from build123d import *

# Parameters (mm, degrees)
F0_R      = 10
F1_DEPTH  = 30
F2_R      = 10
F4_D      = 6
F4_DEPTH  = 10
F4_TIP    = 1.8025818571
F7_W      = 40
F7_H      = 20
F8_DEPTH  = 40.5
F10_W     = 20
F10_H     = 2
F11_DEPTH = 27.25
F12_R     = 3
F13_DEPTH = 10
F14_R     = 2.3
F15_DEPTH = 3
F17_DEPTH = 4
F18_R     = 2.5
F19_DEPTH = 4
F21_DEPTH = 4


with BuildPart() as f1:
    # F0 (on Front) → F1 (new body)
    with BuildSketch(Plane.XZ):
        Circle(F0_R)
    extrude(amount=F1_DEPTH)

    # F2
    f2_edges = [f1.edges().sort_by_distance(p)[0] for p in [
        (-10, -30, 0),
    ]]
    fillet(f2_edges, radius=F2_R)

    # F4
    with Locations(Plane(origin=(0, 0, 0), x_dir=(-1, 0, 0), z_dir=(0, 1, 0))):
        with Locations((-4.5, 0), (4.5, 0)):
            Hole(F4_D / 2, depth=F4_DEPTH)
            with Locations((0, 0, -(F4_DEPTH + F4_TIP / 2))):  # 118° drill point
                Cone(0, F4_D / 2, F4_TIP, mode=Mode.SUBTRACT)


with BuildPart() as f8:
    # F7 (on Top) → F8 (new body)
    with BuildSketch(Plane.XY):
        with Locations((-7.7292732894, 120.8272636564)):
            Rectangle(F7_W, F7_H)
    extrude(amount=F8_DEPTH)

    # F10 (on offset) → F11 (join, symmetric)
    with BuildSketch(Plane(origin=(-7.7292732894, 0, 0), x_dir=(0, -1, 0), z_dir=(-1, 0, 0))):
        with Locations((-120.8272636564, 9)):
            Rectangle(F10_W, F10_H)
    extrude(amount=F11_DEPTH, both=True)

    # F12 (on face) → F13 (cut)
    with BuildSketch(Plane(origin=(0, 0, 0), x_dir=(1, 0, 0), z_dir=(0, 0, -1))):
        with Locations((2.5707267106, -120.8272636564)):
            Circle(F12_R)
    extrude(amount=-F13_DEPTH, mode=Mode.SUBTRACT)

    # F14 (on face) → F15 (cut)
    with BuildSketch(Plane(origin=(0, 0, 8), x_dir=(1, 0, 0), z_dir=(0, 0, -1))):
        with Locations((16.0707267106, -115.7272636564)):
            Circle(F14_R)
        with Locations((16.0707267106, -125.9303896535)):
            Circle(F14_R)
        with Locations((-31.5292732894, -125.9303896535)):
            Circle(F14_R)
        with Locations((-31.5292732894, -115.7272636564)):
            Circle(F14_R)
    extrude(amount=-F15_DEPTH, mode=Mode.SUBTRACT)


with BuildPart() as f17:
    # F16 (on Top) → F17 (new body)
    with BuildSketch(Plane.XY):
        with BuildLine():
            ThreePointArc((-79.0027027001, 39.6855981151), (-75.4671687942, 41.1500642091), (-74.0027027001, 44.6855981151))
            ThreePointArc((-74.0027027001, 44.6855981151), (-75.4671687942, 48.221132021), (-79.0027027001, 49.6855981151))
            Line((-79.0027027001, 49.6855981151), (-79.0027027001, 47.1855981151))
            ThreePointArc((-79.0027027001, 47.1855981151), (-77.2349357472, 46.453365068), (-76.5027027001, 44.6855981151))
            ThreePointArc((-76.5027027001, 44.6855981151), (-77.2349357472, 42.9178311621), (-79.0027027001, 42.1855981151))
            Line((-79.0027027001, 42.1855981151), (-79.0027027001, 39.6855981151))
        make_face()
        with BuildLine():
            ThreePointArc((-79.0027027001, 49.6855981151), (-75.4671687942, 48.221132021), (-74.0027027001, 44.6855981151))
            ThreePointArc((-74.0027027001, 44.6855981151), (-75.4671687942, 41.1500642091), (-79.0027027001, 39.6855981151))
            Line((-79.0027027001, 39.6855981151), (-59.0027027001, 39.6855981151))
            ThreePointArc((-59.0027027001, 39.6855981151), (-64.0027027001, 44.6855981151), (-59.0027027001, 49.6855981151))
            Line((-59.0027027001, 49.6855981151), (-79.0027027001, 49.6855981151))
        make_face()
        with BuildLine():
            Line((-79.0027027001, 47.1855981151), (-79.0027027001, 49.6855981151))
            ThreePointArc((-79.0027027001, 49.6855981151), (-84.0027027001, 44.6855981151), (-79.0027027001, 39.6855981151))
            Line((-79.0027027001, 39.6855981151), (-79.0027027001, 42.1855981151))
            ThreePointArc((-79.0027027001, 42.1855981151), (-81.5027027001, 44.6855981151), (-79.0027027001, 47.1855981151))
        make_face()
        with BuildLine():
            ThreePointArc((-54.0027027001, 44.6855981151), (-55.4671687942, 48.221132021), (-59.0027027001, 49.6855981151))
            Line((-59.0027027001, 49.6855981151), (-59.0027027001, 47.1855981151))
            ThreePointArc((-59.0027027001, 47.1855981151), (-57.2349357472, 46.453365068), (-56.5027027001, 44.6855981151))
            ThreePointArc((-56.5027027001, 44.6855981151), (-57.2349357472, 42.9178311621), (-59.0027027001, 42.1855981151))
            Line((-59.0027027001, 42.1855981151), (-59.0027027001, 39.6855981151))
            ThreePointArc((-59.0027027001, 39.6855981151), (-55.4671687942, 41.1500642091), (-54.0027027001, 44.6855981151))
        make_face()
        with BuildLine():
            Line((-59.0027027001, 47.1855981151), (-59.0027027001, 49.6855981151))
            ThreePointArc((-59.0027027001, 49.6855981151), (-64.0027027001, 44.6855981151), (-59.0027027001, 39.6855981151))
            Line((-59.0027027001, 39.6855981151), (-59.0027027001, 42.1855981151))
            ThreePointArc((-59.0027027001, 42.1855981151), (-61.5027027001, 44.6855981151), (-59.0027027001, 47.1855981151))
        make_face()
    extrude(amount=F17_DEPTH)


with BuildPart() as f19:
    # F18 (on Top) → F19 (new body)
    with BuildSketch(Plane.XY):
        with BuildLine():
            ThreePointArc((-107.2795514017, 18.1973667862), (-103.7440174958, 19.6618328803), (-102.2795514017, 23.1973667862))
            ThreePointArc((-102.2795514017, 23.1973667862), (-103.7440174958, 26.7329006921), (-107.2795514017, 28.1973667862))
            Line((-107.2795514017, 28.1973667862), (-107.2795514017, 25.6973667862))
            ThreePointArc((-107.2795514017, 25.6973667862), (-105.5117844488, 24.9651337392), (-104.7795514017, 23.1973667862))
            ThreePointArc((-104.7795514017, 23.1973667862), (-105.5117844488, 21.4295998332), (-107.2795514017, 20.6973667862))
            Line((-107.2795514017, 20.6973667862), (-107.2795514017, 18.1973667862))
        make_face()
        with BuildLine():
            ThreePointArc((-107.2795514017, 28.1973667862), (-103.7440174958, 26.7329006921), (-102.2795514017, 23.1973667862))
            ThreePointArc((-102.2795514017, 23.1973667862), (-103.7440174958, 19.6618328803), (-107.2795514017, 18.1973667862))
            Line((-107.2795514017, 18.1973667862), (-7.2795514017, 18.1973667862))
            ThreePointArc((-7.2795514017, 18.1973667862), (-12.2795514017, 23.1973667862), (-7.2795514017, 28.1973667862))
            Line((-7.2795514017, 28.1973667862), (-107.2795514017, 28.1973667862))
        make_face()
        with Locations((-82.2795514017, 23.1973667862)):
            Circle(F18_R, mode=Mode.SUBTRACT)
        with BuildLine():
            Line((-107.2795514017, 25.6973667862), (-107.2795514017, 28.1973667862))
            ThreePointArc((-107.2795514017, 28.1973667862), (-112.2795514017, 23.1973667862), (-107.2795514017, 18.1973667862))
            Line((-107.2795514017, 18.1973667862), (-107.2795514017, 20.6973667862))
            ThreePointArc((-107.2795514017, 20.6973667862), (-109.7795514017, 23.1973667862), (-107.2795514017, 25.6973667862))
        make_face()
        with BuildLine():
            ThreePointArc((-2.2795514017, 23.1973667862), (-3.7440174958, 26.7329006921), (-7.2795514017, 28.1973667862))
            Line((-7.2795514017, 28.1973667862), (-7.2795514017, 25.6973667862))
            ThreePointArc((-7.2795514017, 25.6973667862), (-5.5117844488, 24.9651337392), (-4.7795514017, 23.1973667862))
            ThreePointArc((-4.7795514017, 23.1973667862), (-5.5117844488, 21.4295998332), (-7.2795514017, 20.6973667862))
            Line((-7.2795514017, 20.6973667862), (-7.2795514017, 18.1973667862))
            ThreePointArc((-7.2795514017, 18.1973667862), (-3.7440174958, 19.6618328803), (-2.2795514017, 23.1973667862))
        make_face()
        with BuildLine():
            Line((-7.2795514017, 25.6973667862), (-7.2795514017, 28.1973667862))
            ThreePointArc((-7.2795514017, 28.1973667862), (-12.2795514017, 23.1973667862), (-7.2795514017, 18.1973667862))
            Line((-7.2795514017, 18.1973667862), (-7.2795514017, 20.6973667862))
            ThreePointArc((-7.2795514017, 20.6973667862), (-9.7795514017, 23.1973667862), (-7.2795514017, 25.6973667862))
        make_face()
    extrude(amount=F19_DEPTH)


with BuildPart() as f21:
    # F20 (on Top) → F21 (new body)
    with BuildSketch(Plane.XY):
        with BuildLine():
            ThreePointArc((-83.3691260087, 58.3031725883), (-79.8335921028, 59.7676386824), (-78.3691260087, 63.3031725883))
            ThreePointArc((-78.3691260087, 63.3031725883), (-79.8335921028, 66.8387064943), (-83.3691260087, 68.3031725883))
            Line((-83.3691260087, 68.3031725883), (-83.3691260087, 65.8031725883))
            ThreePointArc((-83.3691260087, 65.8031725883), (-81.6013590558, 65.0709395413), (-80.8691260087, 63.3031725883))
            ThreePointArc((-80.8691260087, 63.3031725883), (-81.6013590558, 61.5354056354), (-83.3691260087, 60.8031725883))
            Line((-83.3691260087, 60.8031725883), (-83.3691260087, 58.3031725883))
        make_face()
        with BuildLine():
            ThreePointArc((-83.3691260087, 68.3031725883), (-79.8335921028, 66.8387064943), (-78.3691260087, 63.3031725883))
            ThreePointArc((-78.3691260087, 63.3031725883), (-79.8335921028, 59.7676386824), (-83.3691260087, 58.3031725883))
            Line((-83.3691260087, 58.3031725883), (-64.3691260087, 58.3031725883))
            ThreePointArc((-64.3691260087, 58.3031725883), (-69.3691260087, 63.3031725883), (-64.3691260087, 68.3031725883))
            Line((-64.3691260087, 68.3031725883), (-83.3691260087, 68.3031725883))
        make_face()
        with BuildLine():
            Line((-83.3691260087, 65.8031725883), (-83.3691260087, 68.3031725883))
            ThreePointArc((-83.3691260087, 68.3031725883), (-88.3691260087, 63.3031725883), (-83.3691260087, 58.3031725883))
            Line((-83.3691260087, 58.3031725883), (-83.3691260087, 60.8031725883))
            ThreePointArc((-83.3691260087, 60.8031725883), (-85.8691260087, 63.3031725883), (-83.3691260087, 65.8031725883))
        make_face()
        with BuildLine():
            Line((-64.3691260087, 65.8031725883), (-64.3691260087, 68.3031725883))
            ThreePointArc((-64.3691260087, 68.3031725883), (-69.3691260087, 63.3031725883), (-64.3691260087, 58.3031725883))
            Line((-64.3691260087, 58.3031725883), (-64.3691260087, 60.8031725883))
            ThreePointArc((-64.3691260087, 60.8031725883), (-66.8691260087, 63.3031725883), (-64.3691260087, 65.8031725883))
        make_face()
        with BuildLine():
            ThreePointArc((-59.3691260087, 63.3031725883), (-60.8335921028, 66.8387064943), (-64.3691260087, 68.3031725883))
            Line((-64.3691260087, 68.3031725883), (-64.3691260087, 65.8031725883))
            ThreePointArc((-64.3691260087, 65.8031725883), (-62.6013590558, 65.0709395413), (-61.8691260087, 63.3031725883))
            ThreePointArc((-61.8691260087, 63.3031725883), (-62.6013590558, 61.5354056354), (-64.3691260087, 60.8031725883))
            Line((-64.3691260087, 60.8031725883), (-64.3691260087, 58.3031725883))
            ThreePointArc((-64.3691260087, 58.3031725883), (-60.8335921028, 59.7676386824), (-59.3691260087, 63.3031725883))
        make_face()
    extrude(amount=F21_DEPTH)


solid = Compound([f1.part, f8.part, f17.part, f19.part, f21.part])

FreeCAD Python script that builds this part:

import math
import FreeCAD as App
import Part
import Sketcher
from FreeCAD import Vector


def edges_at(feature, points):
    """Names of the edges that pass closest to the given points."""
    edges = feature.Shape.Edges
    near = lambda p: min(range(len(edges)), key=lambda i: edges[i].distToShape(Part.Vertex(*p))[0])
    return sorted({f"Edge{near(p) + 1}" for p in points})

doc = App.newDocument("Part")
params = doc.addObject("Spreadsheet::Sheet", "Params")
for row, (alias, value) in enumerate([
    ("sketch1_diameter", "20 mm"),
    ("pad1_length", "30 mm"),
    ("fillet_radius", "10 mm"),
    ("sketch2_diameter", "6 mm"),
    ("hole_diameter", "6 mm"),
    ("hole_depth", "10 mm"),
    ("sketch3_width", "40 mm"),
    ("sketch3_height", "20 mm"),
    ("pad2_length", "40.5 mm"),
    ("sketch4_width", "20 mm"),
    ("sketch4_height", "2 mm"),
    ("pad3_length", "54.5 mm"),
    ("sketch5_diameter", "6 mm"),
    ("pocket1_length", "10 mm"),
    ("sketch6_diameter", "4.6 mm"),
    ("pocket2_length", "3 mm"),
    ("sketch7_radius", "5 mm"),
    ("sketch7_radius2", "2.5 mm"),
    ("sketch7_width", "20 mm"),
    ("pad4_length", "4 mm"),
    ("sketch8_diameter", "5 mm"),
    ("sketch8_radius", "5 mm"),
    ("sketch8_width", "100 mm"),
    ("pad5_length", "4 mm"),
    ("sketch9_radius", "5 mm"),
    ("sketch9_radius2", "2.5 mm"),
    ("sketch9_width", "19 mm"),
    ("pad6_length", "4 mm"),
], start=1):
    params.set(f"A{row}", alias)
    params.set(f"B{row}", "=" + value)
    params.setAlias(f"B{row}", alias)

body = doc.addObject("PartDesign::Body", "Body")

sketch1 = body.newObject("Sketcher::SketchObject", "Sketch")
sketch1.AttachmentSupport = (doc.getObject("XZ_Plane"), [""])
sketch1.MapMode = "FlatFace"
sketch1.addGeometry(Part.Circle(Vector(0, 0, 0), Vector(0, 0, 1), 10), False)
sketch1.addConstraint(Sketcher.Constraint("Coincident", 0, 3, -1, 1))
sketch1.addConstraint(Sketcher.Constraint("Diameter", 0, 20.0))
sketch1.setExpression("Constraints[1]", "Params.sketch1_diameter")
pad1 = body.newObject("PartDesign::Pad", "Pad")
pad1.Profile = sketch1
pad1.setExpression("Length", "Params.pad1_length")
doc.recompute()

fillet = body.newObject("PartDesign::Fillet", "Fillet")
fillet.Base = (pad1, edges_at(pad1, [(-10, -30, 0)]))
fillet.setExpression("Radius", "Params.fillet_radius")

sketch2 = body.newObject("Sketcher::SketchObject", "Sketch001")
sketch2.AttachmentSupport = (doc.getObject("XZ_Plane"), [""])
sketch2.MapMode = "FlatFace"
sketch2.addGeometry(Part.Circle(Vector(4.5, 0, 0), Vector(0, 0, 1), 3), False)
sketch2.addGeometry(Part.Circle(Vector(-4.5, 0, 0), Vector(0, 0, 1), 3), False)
sketch2.addConstraint(Sketcher.Constraint("Equal", 0, 1))
sketch2.addConstraint(Sketcher.Constraint("Symmetric", 0, 3, 1, 3, -1, 1))
sketch2.addConstraint(Sketcher.Constraint("PointOnObject", 0, 3, -1))
sketch2.addConstraint(Sketcher.Constraint("Diameter", 0, 6.0))
sketch2.addConstraint(Sketcher.Constraint("DistanceX", 1, 3, 0, 3, 9.0))
sketch2.setExpression("Constraints[3]", "Params.sketch2_diameter")
doc.recompute()
hole = body.newObject("PartDesign::Hole", "Hole")
hole.Profile = sketch2
hole.ThreadType = "None"
hole.setExpression("Diameter", "Params.hole_diameter")
hole.DepthType = "Dimension"
hole.setExpression("Depth", "Params.hole_depth")
hole.DrillPoint = "Angled"
hole.DrillPointAngle = 118
hole.Reversed = True
body2 = doc.addObject("PartDesign::Body", "Body001")

sketch3 = body2.newObject("Sketcher::SketchObject", "Sketch002")
sketch3.AttachmentSupport = (doc.getObject("XY_Plane001"), [""])
sketch3.MapMode = "FlatFace"
sketch3.addGeometry(Part.LineSegment(Vector(-28, 131, 0), Vector(-28, 111, 0)), False)
sketch3.addGeometry(Part.LineSegment(Vector(-28, 111, 0), Vector(12, 111, 0)), False)
sketch3.addGeometry(Part.LineSegment(Vector(12, 111, 0), Vector(12, 131, 0)), False)
sketch3.addGeometry(Part.LineSegment(Vector(12, 131, 0), Vector(-28, 131, 0)), False)
sketch3.addConstraint(Sketcher.Constraint("Coincident", 0, 2, 1, 1))
sketch3.addConstraint(Sketcher.Constraint("Coincident", 1, 2, 2, 1))
sketch3.addConstraint(Sketcher.Constraint("Coincident", 2, 2, 3, 1))
sketch3.addConstraint(Sketcher.Constraint("Coincident", 3, 2, 0, 1))
sketch3.addConstraint(Sketcher.Constraint("Vertical", 0))
sketch3.addConstraint(Sketcher.Constraint("Horizontal", 1))
sketch3.addConstraint(Sketcher.Constraint("Vertical", 2))
sketch3.addConstraint(Sketcher.Constraint("Horizontal", 3))
sketch3.addConstraint(Sketcher.Constraint("DistanceX", 1, 1, 1, 2, 40.0))
sketch3.addConstraint(Sketcher.Constraint("DistanceY", 0, 2, 0, 1, 20.0))
sketch3.addConstraint(Sketcher.Constraint("DistanceX", 0, 2, -1, 1, 27.729273))
sketch3.addConstraint(Sketcher.Constraint("DistanceY", -1, 1, 0, 2, 110.827264))
sketch3.setExpression("Constraints[8]", "Params.sketch3_width")
sketch3.setExpression("Constraints[9]", "Params.sketch3_height")
pad2 = body2.newObject("PartDesign::Pad", "Pad001")
pad2.Profile = sketch3
pad2.setExpression("Length", "Params.pad2_length")

sketch4 = body2.newObject("Sketcher::SketchObject", "Sketch003")
sketch4.AttachmentSupport = (doc.getObject("YZ_Plane001"), [""])
sketch4.MapMode = "FlatFace"
sketch4.AttachmentOffset = App.Placement(Vector(0, 0, -7.729273), App.Rotation())
sketch4.addGeometry(Part.LineSegment(Vector(130.8, 10, 0), Vector(130.8, 8, 0)), False)
sketch4.addGeometry(Part.LineSegment(Vector(130.8, 8, 0), Vector(110.8, 8, 0)), False)
sketch4.addGeometry(Part.LineSegment(Vector(110.8, 8, 0), Vector(110.8, 10, 0)), False)
sketch4.addGeometry(Part.LineSegment(Vector(110.8, 10, 0), Vector(130.8, 10, 0)), False)
sketch4.addConstraint(Sketcher.Constraint("Coincident", 0, 2, 1, 1))
sketch4.addConstraint(Sketcher.Constraint("Coincident", 1, 2, 2, 1))
sketch4.addConstraint(Sketcher.Constraint("Coincident", 2, 2, 3, 1))
sketch4.addConstraint(Sketcher.Constraint("Coincident", 3, 2, 0, 1))
sketch4.addConstraint(Sketcher.Constraint("Vertical", 0))
sketch4.addConstraint(Sketcher.Constraint("Horizontal", 1))
sketch4.addConstraint(Sketcher.Constraint("Vertical", 2))
sketch4.addConstraint(Sketcher.Constraint("Horizontal", 3))
sketch4.addConstraint(Sketcher.Constraint("DistanceX", 1, 2, 1, 1, 20.0))
sketch4.addConstraint(Sketcher.Constraint("DistanceY", 0, 2, 0, 1, 2.0))
sketch4.addConstraint(Sketcher.Constraint("DistanceY", -1, 1, 0, 2, 8.0))
sketch4.addConstraint(Sketcher.Constraint("DistanceX", -1, 1, 0, 2, 130.827264))
sketch4.setExpression("Constraints[8]", "Params.sketch4_width")
sketch4.setExpression("Constraints[9]", "Params.sketch4_height")
pad3 = body2.newObject("PartDesign::Pad", "Pad002")
pad3.Profile = sketch4
pad3.setExpression("Length", "Params.pad3_length")
pad3.Midplane = True

sketch5 = body2.newObject("Sketcher::SketchObject", "Sketch004")
sketch5.AttachmentSupport = (doc.getObject("XY_Plane001"), [""])
sketch5.MapMode = "FlatFace"
sketch5.addGeometry(Part.Circle(Vector(2.6, 120.8, 0), Vector(0, 0, 1), 3), False)
sketch5.addConstraint(Sketcher.Constraint("Diameter", 0, 6.0))
sketch5.addConstraint(Sketcher.Constraint("DistanceX", -1, 1, 0, 3, 2.570727))
sketch5.addConstraint(Sketcher.Constraint("DistanceY", -1, 1, 0, 3, 120.827264))
sketch5.setExpression("Constraints[0]", "Params.sketch5_diameter")
pocket1 = body2.newObject("PartDesign::Pocket", "Pocket")
pocket1.Profile = sketch5
pocket1.setExpression("Length", "Params.pocket1_length")
pocket1.Reversed = True

sketch6 = body2.newObject("Sketcher::SketchObject", "Sketch005")
sketch6.AttachmentSupport = (doc.getObject("XY_Plane001"), [""])
sketch6.MapMode = "FlatFace"
sketch6.AttachmentOffset = App.Placement(Vector(0, 0, 8), App.Rotation())
sketch6.addGeometry(Part.Circle(Vector(16.1, 115.7, 0), Vector(0, 0, 1), 2.3), False)
sketch6.addGeometry(Part.Circle(Vector(16.1, 125.9, 0), Vector(0, 0, 1), 2.3), False)
sketch6.addGeometry(Part.Circle(Vector(-31.5, 125.9, 0), Vector(0, 0, 1), 2.3), False)
sketch6.addGeometry(Part.Circle(Vector(-31.5, 115.7, 0), Vector(0, 0, 1), 2.3), False)
sketch6.addConstraint(Sketcher.Constraint("Equal", 0, 1))
sketch6.addConstraint(Sketcher.Constraint("Equal", 1, 2))
sketch6.addConstraint(Sketcher.Constraint("Equal", 2, 3))
sketch6.addConstraint(Sketcher.Constraint("Horizontal", 1, 3, 2, 3))
sketch6.addConstraint(Sketcher.Constraint("Horizontal", 0, 3, 3, 3))
sketch6.addConstraint(Sketcher.Constraint("Vertical", 0, 3, 1, 3))
sketch6.addConstraint(Sketcher.Constraint("Vertical", 2, 3, 3, 3))
sketch6.addConstraint(Sketcher.Constraint("Diameter", 0, 4.6))
sketch6.addConstraint(Sketcher.Constraint("DistanceX", 2, 3, 1, 3, 47.6))
sketch6.addConstraint(Sketcher.Constraint("DistanceY", -1, 1, 1, 3, 125.93039))
sketch6.addConstraint(Sketcher.Constraint("DistanceX", -1, 1, 0, 3, 16.070727))
sketch6.addConstraint(Sketcher.Constraint("DistanceY", -1, 1, 0, 3, 115.727264))
sketch6.setExpression("Constraints[7]", "Params.sketch6_diameter")
pocket2 = body2.newObject("PartDesign::Pocket", "Pocket001")
pocket2.Profile = sketch6
pocket2.setExpression("Length", "Params.pocket2_length")
pocket2.Reversed = True
body3 = doc.addObject("PartDesign::Body", "Body002")

sketch7 = body3.newObject("Sketcher::SketchObject", "Sketch006")
sketch7.AttachmentSupport = (doc.getObject("XY_Plane002"), [""])
sketch7.MapMode = "FlatFace"
sketch7.addGeometry(Part.LineSegment(Vector(-79, 39.7, 0), Vector(-59, 39.7, 0)), False)
sketch7.addGeometry(Part.ArcOfCircle(Part.Circle(Vector(-59, 44.7, 0), Vector(0, 0, 1), 5), math.radians(-90), math.radians(0)), False)
sketch7.addGeometry(Part.ArcOfCircle(Part.Circle(Vector(-59, 44.7, 0), Vector(0, 0, 1), 5), math.radians(0), math.radians(90)), False)
sketch7.addGeometry(Part.LineSegment(Vector(-59, 49.7, 0), Vector(-79, 49.7, 0)), False)
sketch7.addGeometry(Part.ArcOfCircle(Part.Circle(Vector(-79, 44.7, 0), Vector(0, 0, 1), 5), math.radians(90), math.radians(270)), False)
sketch7.addGeometry(Part.ArcOfCircle(Part.Circle(Vector(-79, 44.7, 0), Vector(0, 0, 1), 2.5), math.radians(0), math.radians(90)), False)
sketch7.addGeometry(Part.ArcOfCircle(Part.Circle(Vector(-79, 44.7, 0), Vector(0, 0, 1), 2.5), math.radians(-90), math.radians(0)), False)
sketch7.addGeometry(Part.ArcOfCircle(Part.Circle(Vector(-79, 44.7, 0), Vector(0, 0, 1), 2.5), math.radians(90), math.radians(270)), False)
sketch7.addGeometry(Part.ArcOfCircle(Part.Circle(Vector(-59, 44.7, 0), Vector(0, 0, 1), 2.5), math.radians(90), math.radians(270)), False)
sketch7.addGeometry(Part.ArcOfCircle(Part.Circle(Vector(-59, 44.7, 0), Vector(0, 0, 1), 2.5), math.radians(0), math.radians(90)), False)
sketch7.addGeometry(Part.ArcOfCircle(Part.Circle(Vector(-59, 44.7, 0), Vector(0, 0, 1), 2.5), math.radians(-90), math.radians(0)), False)
sketch7.addConstraint(Sketcher.Constraint("Tangent", 0, 2, 1, 1))
sketch7.addConstraint(Sketcher.Constraint("Tangent", 1, 2, 2, 1))
sketch7.addConstraint(Sketcher.Constraint("Tangent", 2, 2, 3, 1))
sketch7.addConstraint(Sketcher.Constraint("Tangent", 3, 2, 4, 1))
sketch7.addConstraint(Sketcher.Constraint("Tangent", 4, 2, 0, 1))
sketch7.addConstraint(Sketcher.Constraint("Tangent", 5, 1, 6, 2))
sketch7.addConstraint(Sketcher.Constraint("Tangent", 6, 1, 7, 2))
sketch7.addConstraint(Sketcher.Constraint("Tangent", 7, 1, 5, 2))
sketch7.addConstraint(Sketcher.Constraint("Tangent", 8, 1, 9, 2))
sketch7.addConstraint(Sketcher.Constraint("Tangent", 9, 1, 10, 2))
sketch7.addConstraint(Sketcher.Constraint("Tangent", 10, 1, 8, 2))
sketch7.addConstraint(Sketcher.Constraint("Horizontal", 0))
sketch7.addConstraint(Sketcher.Constraint("Horizontal", 3))
sketch7.addConstraint(Sketcher.Constraint("Coincident", 5, 3, 4, 3))
sketch7.addConstraint(Sketcher.Constraint("Coincident", 8, 3, 1, 3))
sketch7.addConstraint(Sketcher.Constraint("Equal", 1, 2))
sketch7.addConstraint(Sketcher.Constraint("Equal", 7, 8))
sketch7.addConstraint(Sketcher.Constraint("Horizontal", 10, 3, 1, 2))
sketch7.addConstraint(Sketcher.Constraint("Horizontal", 1, 2, 5, 1))
sketch7.addConstraint(Sketcher.Constraint("Horizontal", 5, 1, 9, 1))
sketch7.addConstraint(Sketcher.Constraint("Vertical", 4, 2, 6, 1))
sketch7.addConstraint(Sketcher.Constraint("Vertical", 6, 1, 7, 1))
sketch7.addConstraint(Sketcher.Constraint("Vertical", 2, 2, 8, 1))
sketch7.addConstraint(Sketcher.Constraint("Vertical", 8, 1, 10, 1))
sketch7.addConstraint(Sketcher.Constraint("Radius", 1, 5.0))
sketch7.addConstraint(Sketcher.Constraint("Radius", 5, 2.5))
sketch7.addConstraint(Sketcher.Constraint("DistanceX", 0, 1, 0, 2, 20.0))
sketch7.addConstraint(Sketcher.Constraint("DistanceY", -1, 1, 1, 3, 44.685598))
sketch7.addConstraint(Sketcher.Constraint("DistanceX", 1, 3, -1, 1, 59.002703))
sketch7.setExpression("Constraints[24]", "Params.sketch7_radius")
sketch7.setExpression("Constraints[25]", "Params.sketch7_radius2")
sketch7.setExpression("Constraints[26]", "Params.sketch7_width")
pad4 = body3.newObject("PartDesign::Pad", "Pad003")
pad4.Profile = sketch7
pad4.setExpression("Length", "Params.pad4_length")
body4 = doc.addObject("PartDesign::Body", "Body003")

sketch8 = body4.newObject("Sketcher::SketchObject", "Sketch007")
sketch8.AttachmentSupport = (doc.getObject("XY_Plane003"), [""])
sketch8.MapMode = "FlatFace"
sketch8.addGeometry(Part.LineSegment(Vector(-7.3, 28.2, 0), Vector(-107.3, 28.2, 0)), False)
sketch8.addGeometry(Part.ArcOfCircle(Part.Circle(Vector(-107.3, 23.2, 0), Vector(0, 0, 1), 5), math.radians(90), math.radians(270)), False)
sketch8.addGeometry(Part.LineSegment(Vector(-107.3, 18.2, 0), Vector(-7.3, 18.2, 0)), False)
sketch8.addGeometry(Part.ArcOfCircle(Part.Circle(Vector(-7.3, 23.2, 0), Vector(0, 0, 1), 5), math.radians(-90), math.radians(0)), False)
sketch8.addGeometry(Part.ArcOfCircle(Part.Circle(Vector(-7.3, 23.2, 0), Vector(0, 0, 1), 5), math.radians(0), math.radians(90)), False)
sketch8.addGeometry(Part.ArcOfCircle(Part.Circle(Vector(-107.3, 23.2, 0), Vector(0, 0, 1), 2.5), math.radians(0), math.radians(90)), False)
sketch8.addGeometry(Part.ArcOfCircle(Part.Circle(Vector(-107.3, 23.2, 0), Vector(0, 0, 1), 2.5), math.radians(-90), math.radians(0)), False)
sketch8.addGeometry(Part.ArcOfCircle(Part.Circle(Vector(-107.3, 23.2, 0), Vector(0, 0, 1), 2.5), math.radians(90), math.radians(270)), False)
sketch8.addGeometry(Part.Circle(Vector(-82.3, 23.2, 0), Vector(0, 0, 1), 2.5), False)
sketch8.addGeometry(Part.ArcOfCircle(Part.Circle(Vector(-7.3, 23.2, 0), Vector(0, 0, 1), 2.5), math.radians(90), math.radians(270)), False)
sketch8.addGeometry(Part.ArcOfCircle(Part.Circle(Vector(-7.3, 23.2, 0), Vector(0, 0, 1), 2.5), math.radians(0), math.radians(90)), False)
sketch8.addGeometry(Part.ArcOfCircle(Part.Circle(Vector(-7.3, 23.2, 0), Vector(0, 0, 1), 2.5), math.radians(-90), math.radians(0)), False)
sketch8.addConstraint(Sketcher.Constraint("Tangent", 0, 2, 1, 1))
sketch8.addConstraint(Sketcher.Constraint("Tangent", 1, 2, 2, 1))
sketch8.addConstraint(Sketcher.Constraint("Tangent", 2, 2, 3, 1))
sketch8.addConstraint(Sketcher.Constraint("Tangent", 3, 2, 4, 1))
sketch8.addConstraint(Sketcher.Constraint("Tangent", 4, 2, 0, 1))
sketch8.addConstraint(Sketcher.Constraint("Tangent", 5, 1, 6, 2))
sketch8.addConstraint(Sketcher.Constraint("Tangent", 6, 1, 7, 2))
sketch8.addConstraint(Sketcher.Constraint("Tangent", 7, 1, 5, 2))
sketch8.addConstraint(Sketcher.Constraint("Tangent", 9, 1, 10, 2))
sketch8.addConstraint(Sketcher.Constraint("Tangent", 10, 1, 11, 2))
sketch8.addConstraint(Sketcher.Constraint("Tangent", 11, 1, 9, 2))
sketch8.addConstraint(Sketcher.Constraint("Horizontal", 0))
sketch8.addConstraint(Sketcher.Constraint("Horizontal", 2))
sketch8.addConstraint(Sketcher.Constraint("Coincident", 5, 3, 1, 3))
sketch8.addConstraint(Sketcher.Constraint("Coincident", 9, 3, 3, 3))
sketch8.addConstraint(Sketcher.Constraint("Equal", 1, 3))
sketch8.addConstraint(Sketcher.Constraint("Equal", 7, 8))
sketch8.addConstraint(Sketcher.Constraint("Equal", 8, 9))
sketch8.addConstraint(Sketcher.Constraint("Horizontal", 7, 3, 8, 3))
sketch8.addConstraint(Sketcher.Constraint("Horizontal", 11, 3, 3, 2))
sketch8.addConstraint(Sketcher.Constraint("Horizontal", 3, 2, 5, 1))
sketch8.addConstraint(Sketcher.Constraint("Horizontal", 5, 1, 10, 1))
sketch8.addConstraint(Sketcher.Constraint("Vertical", 1, 2, 6, 1))
sketch8.addConstraint(Sketcher.Constraint("Vertical", 6, 1, 7, 1))
sketch8.addConstraint(Sketcher.Constraint("Vertical", 4, 2, 9, 1))
sketch8.addConstraint(Sketcher.Constraint("Vertical", 9, 1, 11, 1))
sketch8.addConstraint(Sketcher.Constraint("Diameter", 8, 5.0))
sketch8.addConstraint(Sketcher.Constraint("Radius", 1, 5.0))
sketch8.addConstraint(Sketcher.Constraint("DistanceX", 0, 2, 0, 1, 100.0))
sketch8.addConstraint(Sketcher.Constraint("DistanceX", 1, 3, 8, 3, 25.0))
sketch8.addConstraint(Sketcher.Constraint("DistanceX", 1, 3, -1, 1, 107.279551))
sketch8.addConstraint(Sketcher.Constraint("DistanceY", -1, 1, 1, 3, 23.197367))
sketch8.setExpression("Constraints[26]", "Params.sketch8_diameter")
sketch8.setExpression("Constraints[27]", "Params.sketch8_radius")
sketch8.setExpression("Constraints[28]", "Params.sketch8_width")
pad5 = body4.newObject("PartDesign::Pad", "Pad004")
pad5.Profile = sketch8
pad5.setExpression("Length", "Params.pad5_length")
body5 = doc.addObject("PartDesign::Body", "Body004")

sketch9 = body5.newObject("Sketcher::SketchObject", "Sketch008")
sketch9.AttachmentSupport = (doc.getObject("XY_Plane004"), [""])
sketch9.MapMode = "FlatFace"
sketch9.addGeometry(Part.LineSegment(Vector(-83.4, 58.3, 0), Vector(-64.4, 58.3, 0)), False)
sketch9.addGeometry(Part.ArcOfCircle(Part.Circle(Vector(-64.4, 63.3, 0), Vector(0, 0, 1), 5), math.radians(-90), math.radians(0)), False)
sketch9.addGeometry(Part.ArcOfCircle(Part.Circle(Vector(-64.4, 63.3, 0), Vector(0, 0, 1), 5), math.radians(0), math.radians(90)), False)
sketch9.addGeometry(Part.LineSegment(Vector(-64.4, 68.3, 0), Vector(-83.4, 68.3, 0)), False)
sketch9.addGeometry(Part.ArcOfCircle(Part.Circle(Vector(-83.4, 63.3, 0), Vector(0, 0, 1), 5), math.radians(90), math.radians(270)), False)
sketch9.addGeometry(Part.ArcOfCircle(Part.Circle(Vector(-83.4, 63.3, 0), Vector(0, 0, 1), 2.5), math.radians(0), math.radians(90)), False)
sketch9.addGeometry(Part.ArcOfCircle(Part.Circle(Vector(-83.4, 63.3, 0), Vector(0, 0, 1), 2.5), math.radians(-90), math.radians(0)), False)
sketch9.addGeometry(Part.ArcOfCircle(Part.Circle(Vector(-83.4, 63.3, 0), Vector(0, 0, 1), 2.5), math.radians(90), math.radians(270)), False)
sketch9.addGeometry(Part.ArcOfCircle(Part.Circle(Vector(-64.4, 63.3, 0), Vector(0, 0, 1), 2.5), math.radians(90), math.radians(270)), False)
sketch9.addGeometry(Part.ArcOfCircle(Part.Circle(Vector(-64.4, 63.3, 0), Vector(0, 0, 1), 2.5), math.radians(0), math.radians(90)), False)
sketch9.addGeometry(Part.ArcOfCircle(Part.Circle(Vector(-64.4, 63.3, 0), Vector(0, 0, 1), 2.5), math.radians(-90), math.radians(0)), False)
sketch9.addConstraint(Sketcher.Constraint("Tangent", 0, 2, 1, 1))
sketch9.addConstraint(Sketcher.Constraint("Tangent", 1, 2, 2, 1))
sketch9.addConstraint(Sketcher.Constraint("Tangent", 2, 2, 3, 1))
sketch9.addConstraint(Sketcher.Constraint("Tangent", 3, 2, 4, 1))
sketch9.addConstraint(Sketcher.Constraint("Tangent", 4, 2, 0, 1))
sketch9.addConstraint(Sketcher.Constraint("Tangent", 5, 1, 6, 2))
sketch9.addConstraint(Sketcher.Constraint("Tangent", 6, 1, 7, 2))
sketch9.addConstraint(Sketcher.Constraint("Tangent", 7, 1, 5, 2))
sketch9.addConstraint(Sketcher.Constraint("Tangent", 8, 1, 9, 2))
sketch9.addConstraint(Sketcher.Constraint("Tangent", 9, 1, 10, 2))
sketch9.addConstraint(Sketcher.Constraint("Tangent", 10, 1, 8, 2))
sketch9.addConstraint(Sketcher.Constraint("Horizontal", 0))
sketch9.addConstraint(Sketcher.Constraint("Horizontal", 3))
sketch9.addConstraint(Sketcher.Constraint("Coincident", 5, 3, 4, 3))
sketch9.addConstraint(Sketcher.Constraint("Coincident", 8, 3, 1, 3))
sketch9.addConstraint(Sketcher.Constraint("Equal", 1, 2))
sketch9.addConstraint(Sketcher.Constraint("Equal", 7, 8))
sketch9.addConstraint(Sketcher.Constraint("Horizontal", 10, 3, 1, 2))
sketch9.addConstraint(Sketcher.Constraint("Horizontal", 1, 2, 5, 1))
sketch9.addConstraint(Sketcher.Constraint("Horizontal", 5, 1, 9, 1))
sketch9.addConstraint(Sketcher.Constraint("Vertical", 4, 2, 6, 1))
sketch9.addConstraint(Sketcher.Constraint("Vertical", 6, 1, 7, 1))
sketch9.addConstraint(Sketcher.Constraint("Vertical", 2, 2, 8, 1))
sketch9.addConstraint(Sketcher.Constraint("Vertical", 8, 1, 10, 1))
sketch9.addConstraint(Sketcher.Constraint("Radius", 1, 5.0))
sketch9.addConstraint(Sketcher.Constraint("Radius", 5, 2.5))
sketch9.addConstraint(Sketcher.Constraint("DistanceX", 0, 1, 0, 2, 19.0))
sketch9.addConstraint(Sketcher.Constraint("DistanceX", 1, 3, -1, 1, 64.369126))
sketch9.addConstraint(Sketcher.Constraint("DistanceY", -1, 1, 1, 3, 63.303173))
sketch9.setExpression("Constraints[24]", "Params.sketch9_radius")
sketch9.setExpression("Constraints[25]", "Params.sketch9_radius2")
sketch9.setExpression("Constraints[26]", "Params.sketch9_width")
pad6 = body5.newObject("PartDesign::Pad", "Pad005")
pad6.Profile = sketch9
pad6.setExpression("Length", "Params.pad6_length")

doc.recompute()
